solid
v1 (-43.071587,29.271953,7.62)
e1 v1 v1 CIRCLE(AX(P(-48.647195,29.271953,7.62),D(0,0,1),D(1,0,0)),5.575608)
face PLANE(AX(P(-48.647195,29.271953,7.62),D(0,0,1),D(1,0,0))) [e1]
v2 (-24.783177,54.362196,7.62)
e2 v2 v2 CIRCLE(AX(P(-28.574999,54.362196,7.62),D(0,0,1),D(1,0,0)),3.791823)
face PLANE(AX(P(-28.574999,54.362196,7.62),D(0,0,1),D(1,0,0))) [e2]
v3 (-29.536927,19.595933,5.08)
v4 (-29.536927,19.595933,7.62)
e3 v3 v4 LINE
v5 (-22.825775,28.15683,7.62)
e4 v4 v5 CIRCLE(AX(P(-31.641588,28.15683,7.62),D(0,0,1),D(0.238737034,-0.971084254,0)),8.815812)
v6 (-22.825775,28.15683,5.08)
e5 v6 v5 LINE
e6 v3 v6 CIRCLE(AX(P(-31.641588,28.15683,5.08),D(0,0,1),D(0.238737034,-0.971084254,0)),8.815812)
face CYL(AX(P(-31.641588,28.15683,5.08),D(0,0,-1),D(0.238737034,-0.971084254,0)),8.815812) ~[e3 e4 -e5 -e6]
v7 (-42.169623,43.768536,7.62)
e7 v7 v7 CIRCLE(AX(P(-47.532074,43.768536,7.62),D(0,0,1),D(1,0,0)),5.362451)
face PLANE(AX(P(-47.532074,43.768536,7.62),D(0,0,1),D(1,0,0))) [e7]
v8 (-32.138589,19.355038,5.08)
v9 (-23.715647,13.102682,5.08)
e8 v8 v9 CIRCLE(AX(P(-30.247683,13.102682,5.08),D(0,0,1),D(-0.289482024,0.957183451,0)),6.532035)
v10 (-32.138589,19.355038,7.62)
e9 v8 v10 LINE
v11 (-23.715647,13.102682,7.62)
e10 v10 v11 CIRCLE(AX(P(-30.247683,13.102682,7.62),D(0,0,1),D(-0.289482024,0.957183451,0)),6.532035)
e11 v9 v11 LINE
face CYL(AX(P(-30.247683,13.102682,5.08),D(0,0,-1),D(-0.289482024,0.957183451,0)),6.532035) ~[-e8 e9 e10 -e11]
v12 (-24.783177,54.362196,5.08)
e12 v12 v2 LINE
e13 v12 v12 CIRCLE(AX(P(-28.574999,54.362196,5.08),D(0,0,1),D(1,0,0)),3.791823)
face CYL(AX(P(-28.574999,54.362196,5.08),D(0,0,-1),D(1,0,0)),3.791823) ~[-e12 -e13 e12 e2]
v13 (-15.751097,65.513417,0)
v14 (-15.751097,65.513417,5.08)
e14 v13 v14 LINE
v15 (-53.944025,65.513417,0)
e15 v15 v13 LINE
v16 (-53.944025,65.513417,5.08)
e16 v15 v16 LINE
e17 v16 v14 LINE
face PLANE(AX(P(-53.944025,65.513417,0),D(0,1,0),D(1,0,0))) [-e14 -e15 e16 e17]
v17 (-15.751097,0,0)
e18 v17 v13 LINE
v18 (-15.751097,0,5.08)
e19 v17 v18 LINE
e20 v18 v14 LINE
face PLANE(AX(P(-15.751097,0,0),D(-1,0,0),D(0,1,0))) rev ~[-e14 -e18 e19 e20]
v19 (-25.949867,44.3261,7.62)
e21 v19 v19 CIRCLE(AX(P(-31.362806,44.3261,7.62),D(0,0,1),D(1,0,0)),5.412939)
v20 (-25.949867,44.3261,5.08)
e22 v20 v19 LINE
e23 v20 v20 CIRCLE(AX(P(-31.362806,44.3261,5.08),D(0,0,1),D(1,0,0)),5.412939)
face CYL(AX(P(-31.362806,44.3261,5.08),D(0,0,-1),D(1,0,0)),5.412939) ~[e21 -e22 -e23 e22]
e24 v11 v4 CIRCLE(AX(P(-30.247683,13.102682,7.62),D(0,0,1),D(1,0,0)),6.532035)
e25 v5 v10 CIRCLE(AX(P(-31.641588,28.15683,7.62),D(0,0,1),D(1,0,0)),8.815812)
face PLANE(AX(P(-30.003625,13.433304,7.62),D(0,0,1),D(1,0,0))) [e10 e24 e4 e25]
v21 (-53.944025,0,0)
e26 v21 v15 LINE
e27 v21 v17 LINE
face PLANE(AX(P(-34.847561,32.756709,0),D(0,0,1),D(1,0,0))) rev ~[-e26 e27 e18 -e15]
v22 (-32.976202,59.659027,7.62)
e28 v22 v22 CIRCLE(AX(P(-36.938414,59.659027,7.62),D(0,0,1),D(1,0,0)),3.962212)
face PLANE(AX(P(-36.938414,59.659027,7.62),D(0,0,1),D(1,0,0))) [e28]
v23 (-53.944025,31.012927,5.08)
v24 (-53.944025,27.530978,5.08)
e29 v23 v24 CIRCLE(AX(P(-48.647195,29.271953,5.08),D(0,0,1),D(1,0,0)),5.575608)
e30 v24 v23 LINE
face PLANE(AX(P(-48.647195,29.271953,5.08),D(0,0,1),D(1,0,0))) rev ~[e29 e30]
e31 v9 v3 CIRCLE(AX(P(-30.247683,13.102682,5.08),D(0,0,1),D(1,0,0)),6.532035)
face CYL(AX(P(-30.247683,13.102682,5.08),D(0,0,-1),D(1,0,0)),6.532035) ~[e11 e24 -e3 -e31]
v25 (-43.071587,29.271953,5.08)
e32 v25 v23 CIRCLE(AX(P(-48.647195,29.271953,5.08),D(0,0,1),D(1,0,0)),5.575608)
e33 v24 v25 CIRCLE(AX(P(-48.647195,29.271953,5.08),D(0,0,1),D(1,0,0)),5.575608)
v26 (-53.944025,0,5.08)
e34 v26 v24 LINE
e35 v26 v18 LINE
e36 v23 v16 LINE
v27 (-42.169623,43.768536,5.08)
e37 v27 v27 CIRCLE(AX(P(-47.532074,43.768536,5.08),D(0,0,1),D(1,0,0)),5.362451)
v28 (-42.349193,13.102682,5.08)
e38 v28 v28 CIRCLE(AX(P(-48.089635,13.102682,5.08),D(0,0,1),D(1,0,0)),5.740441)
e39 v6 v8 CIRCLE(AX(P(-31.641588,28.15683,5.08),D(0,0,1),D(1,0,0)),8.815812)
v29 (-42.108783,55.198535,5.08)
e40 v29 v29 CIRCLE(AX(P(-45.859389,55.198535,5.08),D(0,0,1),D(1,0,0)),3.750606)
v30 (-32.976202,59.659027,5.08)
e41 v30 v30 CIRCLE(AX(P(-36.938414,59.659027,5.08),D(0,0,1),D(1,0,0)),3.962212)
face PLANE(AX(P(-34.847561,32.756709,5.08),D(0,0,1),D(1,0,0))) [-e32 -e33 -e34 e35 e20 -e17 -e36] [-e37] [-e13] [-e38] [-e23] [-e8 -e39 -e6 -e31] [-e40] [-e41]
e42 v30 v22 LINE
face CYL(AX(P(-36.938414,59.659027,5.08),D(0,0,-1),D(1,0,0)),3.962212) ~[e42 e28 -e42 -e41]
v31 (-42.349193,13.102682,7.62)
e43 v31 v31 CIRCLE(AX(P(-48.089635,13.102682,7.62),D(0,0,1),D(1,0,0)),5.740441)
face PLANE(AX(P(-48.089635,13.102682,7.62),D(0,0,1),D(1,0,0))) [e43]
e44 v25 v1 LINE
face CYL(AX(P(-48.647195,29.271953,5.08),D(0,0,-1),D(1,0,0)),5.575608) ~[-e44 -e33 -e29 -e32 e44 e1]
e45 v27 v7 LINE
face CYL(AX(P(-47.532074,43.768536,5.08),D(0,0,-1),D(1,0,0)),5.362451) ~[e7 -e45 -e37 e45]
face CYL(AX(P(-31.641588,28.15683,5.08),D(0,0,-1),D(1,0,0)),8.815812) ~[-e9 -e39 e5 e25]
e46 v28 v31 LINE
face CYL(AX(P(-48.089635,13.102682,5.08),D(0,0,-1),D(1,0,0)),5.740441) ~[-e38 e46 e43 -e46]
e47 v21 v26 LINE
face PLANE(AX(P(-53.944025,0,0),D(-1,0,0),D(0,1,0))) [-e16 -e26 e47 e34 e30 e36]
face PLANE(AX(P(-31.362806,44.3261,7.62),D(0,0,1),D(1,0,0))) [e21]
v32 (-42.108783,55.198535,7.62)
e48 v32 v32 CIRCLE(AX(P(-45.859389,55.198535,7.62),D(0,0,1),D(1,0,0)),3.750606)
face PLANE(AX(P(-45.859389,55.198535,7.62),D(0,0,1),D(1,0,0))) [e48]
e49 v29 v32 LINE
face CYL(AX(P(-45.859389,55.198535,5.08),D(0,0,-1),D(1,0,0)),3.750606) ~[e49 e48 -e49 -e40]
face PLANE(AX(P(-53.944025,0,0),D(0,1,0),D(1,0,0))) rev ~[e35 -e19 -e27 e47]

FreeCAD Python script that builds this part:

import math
import FreeCAD as App
import Part
import Sketcher
from FreeCAD import Vector
Q = App.Units.Quantity


def add_polygon(sketch, points):
    """Adds a closed chain of lines whose ends are joined by coincident constraints."""
    first, n = sketch.GeometryCount, len(points)
    for a, b in zip(points, points[1:] + points[:1]):
        sketch.addGeometry(Part.LineSegment(App.Vector(*a, 0), App.Vector(*b, 0)), False)
    for i in range(n):
        sketch.addConstraint(Sketcher.Constraint("Coincident", first + i, 2, first + (i + 1) % n, 1))

doc = App.newDocument("Part")
body = doc.addObject("PartDesign::Body", "Body")

sketch1 = body.newObject("Sketcher::SketchObject", "Sketch")
sketch1.AttachmentSupport = (doc.getObject("XY_Plane"), [""])
sketch1.MapMode = "FlatFace"
add_polygon(sketch1, [(-54, 66), (-54, 0), (-16, 0), (-16, 66)])
sketch1.addConstraint([
    Sketcher.Constraint("Vertical", 0),
    Sketcher.Constraint("Horizontal", 1),
    Sketcher.Constraint("Vertical", 2),
    Sketcher.Constraint("Horizontal", 3),
    Sketcher.Constraint("PointOnObject", 0, 2, -1),
    Sketcher.Constraint("DistanceX", 1, 1, 1, 2, 38.192928),
    Sketcher.Constraint("DistanceY", 0, 2, 0, 1, 65.513417),
    Sketcher.Constraint("DistanceX", 0, 2, -1, 1, 53.944025),
])
pad1 = body.newObject("PartDesign::Pad", "Pad")
pad1.Profile = sketch1
pad1.Length = Q("0.2 in")

sketch2 = body.newObject("Sketcher::SketchObject", "Sketch001")
sketch2.AttachmentSupport = (doc.getObject("XY_Plane"), [""])
sketch2.MapMode = "FlatFace"
sketch2.AttachmentOffset = App.Placement(Vector(0, 0, 0.2 * 25.4), App.Rotation())
sketch2.addGeometry([
    Part.Circle(Vector(-47.5, 43.8, 0), Vector(0, 0, 1), 5.4),
    Part.Circle(Vector(-48.6, 29.3, 0), Vector(0, 0, 1), 5.6),
    Part.Circle(Vector(-48.1, 13.1, 0), Vector(0, 0, 1), 5.7),
    Part.ArcOfCircle(Part.Circle(Vector(-30.2, 13.1, 0), Vector(0, 0, 1), 6.5), math.radians(107), math.radians(360)),
    Part.ArcOfCircle(Part.Circle(Vector(-30.2, 13.1, 0), Vector(0, 0, 1), 6.5), math.radians(0), math.radians(84)),
    Part.ArcOfCircle(Part.Circle(Vector(-31.6, 28.2, 0), Vector(0, 0, 1), 8.8), math.radians(-76), math.radians(0)),
    Part.ArcOfCircle(Part.Circle(Vector(-31.6, 28.2, 0), Vector(0, 0, 1), 8.8), math.radians(0), math.radians(267)),
    Part.Circle(Vector(-31.4, 44.3, 0), Vector(0, 0, 1), 5.4),
    Part.Circle(Vector(-28.6, 54.4, 0), Vector(0, 0, 1), 3.8),
    Part.Circle(Vector(-45.9, 55.2, 0), Vector(0, 0, 1), 3.8),
    Part.Circle(Vector(-36.9, 59.7, 0), Vector(0, 0, 1), 4),
], False)
sketch2.addConstraint([
    Sketcher.Constraint("Tangent", 3, 2, 4, 1),
    Sketcher.Constraint("Coincident", 4, 2, 5, 1),
    Sketcher.Constraint("Tangent", 5, 2, 6, 1),
    Sketcher.Constraint("Coincident", 6, 2, 3, 1),
    Sketcher.Constraint("Equal", 3, 4),
    Sketcher.Constraint("Equal", 5, 6),
    Sketcher.Constraint("Horizontal", 2, 3, 3, 3),
    Sketcher.Constraint("Horizontal", 4, 3, 3, 2),
    Sketcher.Constraint("Horizontal", 6, 3, 5, 2),
    Sketcher.Constraint("Diameter", 0, 10.724901),
    Sketcher.Constraint("DistanceY", 0, 3, 9, 3, Q("0.45 in")),
    Sketcher.Constraint("Diameter", 9, 7.501211),
    Sketcher.Constraint("DistanceX", 8, 3, -1, 1, Q("1.125 in")),
    Sketcher.Constraint("Diameter", 1, 11.151215),
    Sketcher.Constraint("Diameter", 2, 11.480883),
    Sketcher.Constraint("Diameter", 7, 10.825877),
    Sketcher.Constraint("Diameter", 8, 7.583645),
    Sketcher.Constraint("Diameter", 10, 7.924424),
    Sketcher.Constraint("Radius", 3, 6.532035),
    Sketcher.Constraint("Radius", 5, 8.815812),
    Sketcher.Constraint("DistanceY", -1, 1, 7, 3, 44.3261),
    Sketcher.Constraint("DistanceX", 9, 3, 5, 3, 14.217801),
    Sketcher.Constraint("DistanceX", 6, 2, 5, 3, 0.497002),
    Sketcher.Constraint("DistanceY", -1, 1, 5, 3, 28.15683),
    Sketcher.Constraint("DistanceX", 9, 3, -1, 1, 45.859389),
    Sketcher.Constraint("DistanceX", 1, 3, 0, 3, 1.115121),
    Sketcher.Constraint("DistanceX", 1, 3, 2, 3, 0.55756),
    Sketcher.Constraint("DistanceY", 2, 3, 1, 3, 16.169271),
    Sketcher.Constraint("DistanceX", 2, 3, 3, 3, 17.841952),
    Sketcher.Constraint("DistanceX", 0, 3, 7, 3, 16.169269),
    Sketcher.Constraint("DistanceY", 3, 3, 7, 3, 31.223418),
    Sketcher.Constraint("DistanceY", 0, 3, 8, 3, 10.59366),
    Sketcher.Constraint("DistanceY", 8, 3, 10, 3, 5.29683),
    Sketcher.Constraint("DistanceX", 10, 3, 7, 3, 5.575608),
    Sketcher.Constraint("DistanceY", -1, 1, 0, 3, 43.768536),
])
pad2 = body.newObject("PartDesign::Pad", "Pad001")
pad2.Profile = sketch2
pad2.Length = Q("0.1 in")

doc.recompute()
